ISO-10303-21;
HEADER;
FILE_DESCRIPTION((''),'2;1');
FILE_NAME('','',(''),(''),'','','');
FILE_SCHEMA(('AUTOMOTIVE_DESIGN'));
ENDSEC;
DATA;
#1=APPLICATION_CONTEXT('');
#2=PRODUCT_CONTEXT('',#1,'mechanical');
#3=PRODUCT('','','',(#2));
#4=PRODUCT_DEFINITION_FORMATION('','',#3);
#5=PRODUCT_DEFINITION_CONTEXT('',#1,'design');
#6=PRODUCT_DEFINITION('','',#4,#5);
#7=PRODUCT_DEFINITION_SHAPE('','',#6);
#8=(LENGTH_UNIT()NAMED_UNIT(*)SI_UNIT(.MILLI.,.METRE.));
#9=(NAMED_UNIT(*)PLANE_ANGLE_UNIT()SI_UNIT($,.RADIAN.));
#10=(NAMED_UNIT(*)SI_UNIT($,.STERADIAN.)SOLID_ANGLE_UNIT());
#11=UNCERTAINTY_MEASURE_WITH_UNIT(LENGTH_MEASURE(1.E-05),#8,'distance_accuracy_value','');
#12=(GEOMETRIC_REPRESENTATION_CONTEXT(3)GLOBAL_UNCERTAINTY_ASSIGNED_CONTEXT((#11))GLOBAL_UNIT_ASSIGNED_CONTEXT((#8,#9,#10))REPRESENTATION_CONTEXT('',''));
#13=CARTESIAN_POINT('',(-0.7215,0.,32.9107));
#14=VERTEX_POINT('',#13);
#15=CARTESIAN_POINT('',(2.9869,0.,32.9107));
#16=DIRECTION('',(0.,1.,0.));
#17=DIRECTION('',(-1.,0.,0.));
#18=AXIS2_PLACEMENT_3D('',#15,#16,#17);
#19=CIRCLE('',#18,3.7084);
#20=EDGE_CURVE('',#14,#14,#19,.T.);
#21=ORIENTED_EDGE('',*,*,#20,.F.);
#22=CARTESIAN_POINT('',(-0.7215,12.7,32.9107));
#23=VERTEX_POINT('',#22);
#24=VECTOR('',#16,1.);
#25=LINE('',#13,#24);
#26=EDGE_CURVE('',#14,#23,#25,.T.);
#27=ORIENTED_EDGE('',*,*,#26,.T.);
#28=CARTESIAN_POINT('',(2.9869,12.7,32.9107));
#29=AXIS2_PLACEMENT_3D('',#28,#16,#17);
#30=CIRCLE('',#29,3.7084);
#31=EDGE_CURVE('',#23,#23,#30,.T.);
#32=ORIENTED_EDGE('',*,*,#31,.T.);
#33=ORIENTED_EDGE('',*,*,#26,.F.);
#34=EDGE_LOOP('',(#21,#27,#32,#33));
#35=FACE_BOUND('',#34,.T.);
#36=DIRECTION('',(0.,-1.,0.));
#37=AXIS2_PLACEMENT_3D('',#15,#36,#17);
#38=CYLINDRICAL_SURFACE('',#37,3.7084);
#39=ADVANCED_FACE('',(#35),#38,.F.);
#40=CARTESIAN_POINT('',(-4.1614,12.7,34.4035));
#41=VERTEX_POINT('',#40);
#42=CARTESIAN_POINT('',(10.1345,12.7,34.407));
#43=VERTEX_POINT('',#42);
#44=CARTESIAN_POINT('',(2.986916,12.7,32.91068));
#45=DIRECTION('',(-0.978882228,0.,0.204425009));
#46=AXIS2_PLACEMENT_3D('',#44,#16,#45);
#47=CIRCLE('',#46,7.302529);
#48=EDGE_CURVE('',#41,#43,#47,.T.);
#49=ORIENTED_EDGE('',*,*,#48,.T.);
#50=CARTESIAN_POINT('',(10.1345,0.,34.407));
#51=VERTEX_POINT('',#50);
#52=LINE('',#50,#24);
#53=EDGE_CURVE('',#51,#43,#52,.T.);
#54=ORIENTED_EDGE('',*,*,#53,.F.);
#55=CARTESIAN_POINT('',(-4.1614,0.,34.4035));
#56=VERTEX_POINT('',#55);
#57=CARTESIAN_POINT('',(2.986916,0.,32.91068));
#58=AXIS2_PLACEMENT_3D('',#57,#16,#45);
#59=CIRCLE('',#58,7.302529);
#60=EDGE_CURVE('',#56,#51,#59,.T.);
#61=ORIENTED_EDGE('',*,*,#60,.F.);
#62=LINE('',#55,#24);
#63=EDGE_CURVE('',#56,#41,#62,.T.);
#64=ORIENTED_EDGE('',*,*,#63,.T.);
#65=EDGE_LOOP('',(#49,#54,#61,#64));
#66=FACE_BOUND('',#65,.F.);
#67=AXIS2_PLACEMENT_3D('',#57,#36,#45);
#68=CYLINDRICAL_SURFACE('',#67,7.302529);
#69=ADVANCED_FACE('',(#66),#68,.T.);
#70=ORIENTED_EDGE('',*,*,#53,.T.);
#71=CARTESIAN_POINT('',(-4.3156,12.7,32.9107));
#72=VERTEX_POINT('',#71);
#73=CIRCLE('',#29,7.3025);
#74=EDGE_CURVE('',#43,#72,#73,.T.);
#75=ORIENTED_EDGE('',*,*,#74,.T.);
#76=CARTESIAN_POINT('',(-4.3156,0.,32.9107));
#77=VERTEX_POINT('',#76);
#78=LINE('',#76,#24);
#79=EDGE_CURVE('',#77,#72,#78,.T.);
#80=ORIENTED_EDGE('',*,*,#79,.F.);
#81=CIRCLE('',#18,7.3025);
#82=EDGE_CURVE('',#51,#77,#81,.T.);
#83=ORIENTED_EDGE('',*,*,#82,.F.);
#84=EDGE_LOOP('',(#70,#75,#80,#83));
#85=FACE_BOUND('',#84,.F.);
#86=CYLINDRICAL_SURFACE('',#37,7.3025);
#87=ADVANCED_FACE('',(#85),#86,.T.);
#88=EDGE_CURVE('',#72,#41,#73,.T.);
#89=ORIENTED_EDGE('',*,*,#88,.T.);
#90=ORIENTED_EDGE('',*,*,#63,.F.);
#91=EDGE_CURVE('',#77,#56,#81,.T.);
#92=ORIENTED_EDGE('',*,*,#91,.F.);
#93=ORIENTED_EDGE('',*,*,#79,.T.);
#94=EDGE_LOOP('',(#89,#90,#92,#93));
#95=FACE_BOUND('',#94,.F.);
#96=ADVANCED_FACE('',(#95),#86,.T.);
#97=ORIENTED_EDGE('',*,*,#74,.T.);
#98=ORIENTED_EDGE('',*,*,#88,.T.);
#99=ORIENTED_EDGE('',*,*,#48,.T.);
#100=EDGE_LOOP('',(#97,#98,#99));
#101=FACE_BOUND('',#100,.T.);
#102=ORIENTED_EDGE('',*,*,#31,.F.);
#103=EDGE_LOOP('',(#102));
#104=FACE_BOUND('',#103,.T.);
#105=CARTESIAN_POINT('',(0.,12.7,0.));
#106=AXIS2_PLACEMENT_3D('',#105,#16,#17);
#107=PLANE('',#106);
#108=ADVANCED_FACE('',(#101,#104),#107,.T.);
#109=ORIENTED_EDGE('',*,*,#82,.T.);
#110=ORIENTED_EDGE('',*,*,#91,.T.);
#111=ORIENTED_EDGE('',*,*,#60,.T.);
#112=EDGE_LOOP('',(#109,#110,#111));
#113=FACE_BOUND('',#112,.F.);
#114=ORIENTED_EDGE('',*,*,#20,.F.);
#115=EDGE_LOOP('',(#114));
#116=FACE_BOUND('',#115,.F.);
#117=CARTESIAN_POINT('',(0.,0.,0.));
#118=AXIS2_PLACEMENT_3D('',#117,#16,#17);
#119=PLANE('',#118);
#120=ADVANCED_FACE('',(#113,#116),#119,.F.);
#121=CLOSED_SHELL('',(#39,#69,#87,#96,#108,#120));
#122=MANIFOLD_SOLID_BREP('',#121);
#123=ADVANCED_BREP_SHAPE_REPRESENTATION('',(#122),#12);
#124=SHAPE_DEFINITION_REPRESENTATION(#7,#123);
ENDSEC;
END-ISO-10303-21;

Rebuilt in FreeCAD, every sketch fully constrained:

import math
import FreeCAD as App
import Part
import Sketcher

V = App.Vector
Q = App.Units.Quantity

doc = App.newDocument("Part")
body = doc.addObject("PartDesign::Body", "Body")

sketch1 = body.newObject("Sketcher::SketchObject", "Sketch")
sketch1.AttachmentSupport = (doc.getObject("XZ_Plane"), [""])
sketch1.MapMode = "FlatFace"
sketch1.addGeometry([
    Part.ArcOfCircle(Part.Circle(V(3, 32.9, 0), V(0, 0, 1), 7.3), math.radians(168), math.radians(372)),
    Part.ArcOfCircle(Part.Circle(V(3, 32.9, 0), V(0, 0, 1), 7.3), math.radians(12), math.radians(168)),
    Part.Circle(V(3, 32.9, 0), V(0, 0, 1), 3.7),
], False)
sketch1.addConstraint([
    Sketcher.Constraint("Tangent", 0, 1, 1, 2),
    Sketcher.Constraint("Coincident", 1, 1, 0, 2),
    Sketcher.Constraint("Coincident", 2, 3, 0, 3),
    Sketcher.Constraint("Diameter", 2, Q("0.292 in")),
    Sketcher.Constraint("Radius", 0, Q("0.2875 in")),
    Sketcher.Constraint("DistanceX", -1, 1, 1, 1, Q("0.399 in")),
    Sketcher.Constraint("DistanceX", -1, 1, 0, 3, Q("0.1176 in")),
    Sketcher.Constraint("DistanceY", -1, 1, 0, 3, Q("1.2957 in")),
    Sketcher.Constraint("DistanceX", 0, 1, -1, 1, 4.1614),
])
pad1 = body.newObject("PartDesign::Pad", "Pad")
pad1.Profile = sketch1
pad1.Length = Q("0.5 in")
pad1.Reversed = True

doc.recompute()
